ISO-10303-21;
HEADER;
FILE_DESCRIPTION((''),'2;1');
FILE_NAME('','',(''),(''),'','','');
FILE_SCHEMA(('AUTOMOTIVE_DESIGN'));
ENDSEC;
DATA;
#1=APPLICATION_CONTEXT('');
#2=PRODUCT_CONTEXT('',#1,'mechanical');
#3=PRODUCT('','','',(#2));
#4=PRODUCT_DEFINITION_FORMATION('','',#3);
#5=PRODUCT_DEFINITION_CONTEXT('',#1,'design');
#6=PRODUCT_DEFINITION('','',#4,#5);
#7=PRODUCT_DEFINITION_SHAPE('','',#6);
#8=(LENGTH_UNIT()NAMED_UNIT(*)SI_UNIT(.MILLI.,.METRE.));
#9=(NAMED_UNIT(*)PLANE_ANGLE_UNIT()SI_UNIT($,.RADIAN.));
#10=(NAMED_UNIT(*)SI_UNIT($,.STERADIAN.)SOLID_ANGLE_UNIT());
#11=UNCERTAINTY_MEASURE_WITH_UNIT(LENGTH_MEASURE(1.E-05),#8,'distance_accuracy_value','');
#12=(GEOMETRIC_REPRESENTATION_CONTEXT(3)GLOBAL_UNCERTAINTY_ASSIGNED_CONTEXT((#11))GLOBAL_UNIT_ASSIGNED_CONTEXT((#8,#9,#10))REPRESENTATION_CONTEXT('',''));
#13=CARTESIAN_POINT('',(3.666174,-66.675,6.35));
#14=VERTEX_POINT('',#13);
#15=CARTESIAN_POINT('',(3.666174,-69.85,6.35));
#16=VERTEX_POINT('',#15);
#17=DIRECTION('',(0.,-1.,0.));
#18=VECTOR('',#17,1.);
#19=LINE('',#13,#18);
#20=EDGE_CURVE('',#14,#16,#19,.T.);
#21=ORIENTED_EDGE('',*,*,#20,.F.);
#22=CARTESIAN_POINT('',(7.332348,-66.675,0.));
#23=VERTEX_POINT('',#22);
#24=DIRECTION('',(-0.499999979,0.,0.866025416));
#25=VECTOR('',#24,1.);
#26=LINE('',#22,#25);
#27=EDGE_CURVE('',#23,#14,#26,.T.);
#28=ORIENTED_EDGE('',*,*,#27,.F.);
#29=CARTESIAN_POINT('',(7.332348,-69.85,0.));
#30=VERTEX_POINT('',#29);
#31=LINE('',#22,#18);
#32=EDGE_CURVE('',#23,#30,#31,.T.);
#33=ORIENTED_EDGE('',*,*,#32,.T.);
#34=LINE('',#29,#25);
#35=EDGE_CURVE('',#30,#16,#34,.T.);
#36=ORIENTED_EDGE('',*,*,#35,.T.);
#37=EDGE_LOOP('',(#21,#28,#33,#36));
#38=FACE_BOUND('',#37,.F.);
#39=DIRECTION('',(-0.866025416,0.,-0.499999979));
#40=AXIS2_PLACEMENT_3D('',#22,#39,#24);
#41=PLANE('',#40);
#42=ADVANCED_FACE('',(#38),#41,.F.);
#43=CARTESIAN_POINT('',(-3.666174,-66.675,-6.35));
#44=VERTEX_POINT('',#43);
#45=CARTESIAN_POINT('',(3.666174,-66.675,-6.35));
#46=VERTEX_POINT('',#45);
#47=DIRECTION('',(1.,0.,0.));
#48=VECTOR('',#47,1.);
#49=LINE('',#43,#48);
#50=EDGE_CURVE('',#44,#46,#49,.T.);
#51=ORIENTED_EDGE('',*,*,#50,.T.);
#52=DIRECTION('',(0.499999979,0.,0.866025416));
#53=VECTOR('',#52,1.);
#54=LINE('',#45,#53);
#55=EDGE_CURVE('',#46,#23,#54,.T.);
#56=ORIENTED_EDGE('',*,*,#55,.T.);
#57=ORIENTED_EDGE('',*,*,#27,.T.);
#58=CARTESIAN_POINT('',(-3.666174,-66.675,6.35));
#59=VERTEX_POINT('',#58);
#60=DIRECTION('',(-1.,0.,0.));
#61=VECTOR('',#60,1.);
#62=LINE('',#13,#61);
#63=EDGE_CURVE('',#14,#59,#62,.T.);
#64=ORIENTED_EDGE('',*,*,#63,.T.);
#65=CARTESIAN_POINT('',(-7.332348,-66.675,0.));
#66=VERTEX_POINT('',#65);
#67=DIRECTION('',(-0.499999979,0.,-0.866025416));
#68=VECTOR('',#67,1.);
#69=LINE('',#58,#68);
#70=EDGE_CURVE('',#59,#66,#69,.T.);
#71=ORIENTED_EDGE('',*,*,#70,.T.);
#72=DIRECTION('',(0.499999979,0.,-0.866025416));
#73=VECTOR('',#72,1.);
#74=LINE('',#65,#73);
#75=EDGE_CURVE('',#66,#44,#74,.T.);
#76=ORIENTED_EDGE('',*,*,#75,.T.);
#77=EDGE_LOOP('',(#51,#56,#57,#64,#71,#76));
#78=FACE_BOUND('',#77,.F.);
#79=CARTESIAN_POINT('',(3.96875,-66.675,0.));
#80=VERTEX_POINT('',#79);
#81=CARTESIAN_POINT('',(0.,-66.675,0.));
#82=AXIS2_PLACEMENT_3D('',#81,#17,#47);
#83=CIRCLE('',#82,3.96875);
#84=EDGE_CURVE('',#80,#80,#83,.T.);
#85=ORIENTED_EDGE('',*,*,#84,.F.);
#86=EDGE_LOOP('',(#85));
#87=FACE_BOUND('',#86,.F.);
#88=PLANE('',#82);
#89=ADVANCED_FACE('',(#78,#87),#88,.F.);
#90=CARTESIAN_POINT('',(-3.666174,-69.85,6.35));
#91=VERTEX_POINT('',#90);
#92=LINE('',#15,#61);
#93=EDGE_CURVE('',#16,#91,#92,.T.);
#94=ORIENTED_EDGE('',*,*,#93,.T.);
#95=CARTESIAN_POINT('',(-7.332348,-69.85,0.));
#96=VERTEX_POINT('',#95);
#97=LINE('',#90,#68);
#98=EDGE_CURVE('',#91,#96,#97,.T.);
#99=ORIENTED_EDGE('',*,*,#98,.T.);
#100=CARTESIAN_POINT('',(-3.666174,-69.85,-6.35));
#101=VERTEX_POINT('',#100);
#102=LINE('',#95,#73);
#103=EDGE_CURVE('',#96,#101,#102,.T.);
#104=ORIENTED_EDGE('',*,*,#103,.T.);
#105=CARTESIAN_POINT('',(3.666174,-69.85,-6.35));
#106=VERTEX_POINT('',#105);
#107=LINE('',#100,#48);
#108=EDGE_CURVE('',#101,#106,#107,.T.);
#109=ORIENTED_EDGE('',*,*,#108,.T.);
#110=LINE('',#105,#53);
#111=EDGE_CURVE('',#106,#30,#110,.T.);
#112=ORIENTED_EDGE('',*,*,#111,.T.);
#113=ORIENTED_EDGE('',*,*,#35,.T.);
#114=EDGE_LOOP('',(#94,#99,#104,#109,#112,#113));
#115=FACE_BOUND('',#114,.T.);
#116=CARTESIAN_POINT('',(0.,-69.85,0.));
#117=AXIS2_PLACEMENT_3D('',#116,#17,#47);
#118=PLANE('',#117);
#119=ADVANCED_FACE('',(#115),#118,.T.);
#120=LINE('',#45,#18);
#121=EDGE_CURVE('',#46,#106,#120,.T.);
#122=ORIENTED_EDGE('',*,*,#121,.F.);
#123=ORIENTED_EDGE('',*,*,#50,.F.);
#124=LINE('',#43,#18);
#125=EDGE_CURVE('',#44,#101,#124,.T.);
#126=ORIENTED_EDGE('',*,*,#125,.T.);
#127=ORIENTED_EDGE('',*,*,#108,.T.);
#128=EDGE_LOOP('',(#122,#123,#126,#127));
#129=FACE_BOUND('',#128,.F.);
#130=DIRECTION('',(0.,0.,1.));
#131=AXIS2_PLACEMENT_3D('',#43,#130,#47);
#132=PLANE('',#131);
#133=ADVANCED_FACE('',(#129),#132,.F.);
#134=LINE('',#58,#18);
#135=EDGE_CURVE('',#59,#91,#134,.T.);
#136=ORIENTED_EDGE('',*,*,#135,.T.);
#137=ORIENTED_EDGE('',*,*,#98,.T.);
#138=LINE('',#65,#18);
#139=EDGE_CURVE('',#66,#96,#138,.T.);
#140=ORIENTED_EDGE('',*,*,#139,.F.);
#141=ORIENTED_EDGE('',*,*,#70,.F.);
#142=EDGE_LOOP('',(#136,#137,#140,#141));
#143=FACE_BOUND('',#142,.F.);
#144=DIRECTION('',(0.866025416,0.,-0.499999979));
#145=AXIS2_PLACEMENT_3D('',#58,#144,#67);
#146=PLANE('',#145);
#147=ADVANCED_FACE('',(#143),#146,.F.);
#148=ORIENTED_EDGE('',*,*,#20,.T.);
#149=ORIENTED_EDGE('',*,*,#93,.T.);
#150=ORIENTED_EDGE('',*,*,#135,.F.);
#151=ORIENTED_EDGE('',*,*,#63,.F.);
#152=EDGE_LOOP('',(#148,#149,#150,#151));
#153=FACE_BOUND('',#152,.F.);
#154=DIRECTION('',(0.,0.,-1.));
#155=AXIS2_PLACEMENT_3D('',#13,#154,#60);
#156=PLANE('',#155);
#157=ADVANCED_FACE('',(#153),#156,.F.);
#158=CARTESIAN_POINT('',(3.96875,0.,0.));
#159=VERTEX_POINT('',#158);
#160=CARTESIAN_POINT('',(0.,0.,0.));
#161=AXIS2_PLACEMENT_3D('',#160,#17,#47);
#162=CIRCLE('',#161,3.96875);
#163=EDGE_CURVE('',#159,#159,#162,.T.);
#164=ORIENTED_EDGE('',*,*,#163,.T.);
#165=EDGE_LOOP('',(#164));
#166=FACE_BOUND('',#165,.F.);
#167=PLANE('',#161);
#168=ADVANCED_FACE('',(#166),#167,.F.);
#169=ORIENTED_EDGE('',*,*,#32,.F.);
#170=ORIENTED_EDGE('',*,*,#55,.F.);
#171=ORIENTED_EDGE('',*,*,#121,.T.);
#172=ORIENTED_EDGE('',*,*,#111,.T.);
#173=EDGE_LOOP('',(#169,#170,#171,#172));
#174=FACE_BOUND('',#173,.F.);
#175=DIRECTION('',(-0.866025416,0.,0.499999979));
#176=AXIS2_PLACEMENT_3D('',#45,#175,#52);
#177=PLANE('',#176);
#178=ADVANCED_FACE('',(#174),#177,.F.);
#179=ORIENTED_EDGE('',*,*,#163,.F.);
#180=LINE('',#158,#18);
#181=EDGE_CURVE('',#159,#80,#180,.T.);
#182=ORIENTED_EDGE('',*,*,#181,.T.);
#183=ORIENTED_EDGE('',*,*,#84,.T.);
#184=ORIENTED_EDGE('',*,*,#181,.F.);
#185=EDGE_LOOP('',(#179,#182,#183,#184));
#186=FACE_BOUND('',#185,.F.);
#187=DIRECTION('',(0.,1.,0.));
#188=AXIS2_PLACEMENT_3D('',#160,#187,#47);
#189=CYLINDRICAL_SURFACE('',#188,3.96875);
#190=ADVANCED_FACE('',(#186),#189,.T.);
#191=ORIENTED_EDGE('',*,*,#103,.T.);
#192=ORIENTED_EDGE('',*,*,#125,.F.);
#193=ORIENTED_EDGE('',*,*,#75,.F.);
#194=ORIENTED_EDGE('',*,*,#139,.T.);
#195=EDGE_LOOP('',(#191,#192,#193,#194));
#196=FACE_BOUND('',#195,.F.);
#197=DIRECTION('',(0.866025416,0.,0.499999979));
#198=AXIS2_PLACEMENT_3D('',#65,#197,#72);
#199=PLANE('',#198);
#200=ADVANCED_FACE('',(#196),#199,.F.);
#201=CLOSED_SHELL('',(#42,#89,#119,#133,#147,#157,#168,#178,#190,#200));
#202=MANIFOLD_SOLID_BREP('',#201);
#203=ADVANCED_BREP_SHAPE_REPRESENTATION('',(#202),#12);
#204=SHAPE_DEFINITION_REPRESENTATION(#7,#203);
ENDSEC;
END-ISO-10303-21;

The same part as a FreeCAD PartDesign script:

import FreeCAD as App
import Part
import Sketcher
Q = App.Units.Quantity

doc = App.newDocument("Part")
body = doc.addObject("PartDesign::Body", "Body")

sketch1 = body.newObject("Sketcher::SketchObject", "Sketch")
sketch1.AttachmentSupport = (doc.getObject("XZ_Plane"), [""])
sketch1.MapMode = "FlatFace"
sketch1.addGeometry(Part.Circle(App.Vector(0, 0, 0), App.Vector(0, 0, 1), 3.96875), False)
sketch1.addConstraint([
    Sketcher.Constraint("Coincident", 0, 3, -1, 1),
    Sketcher.Constraint("Diameter", 0, Q("0.3125 in")),
])
pad1 = body.newObject("PartDesign::Pad", "Pad")
pad1.Profile = sketch1
pad1.Length = Q("2.625 in")

sketch2 = body.newObject("Sketcher::SketchObject", "Sketch001")
sketch2.AttachmentSupport = (doc.getObject("XZ_Plane"), [""])
sketch2.MapMode = "FlatFace"
sketch2.AttachmentOffset = App.Placement(App.Vector(0, 0, 2.625 * 25.4), App.Rotation())
sketch2.addGeometry([
    Part.LineSegment(App.Vector(3.666174, 6.35, 0), App.Vector(-3.666174, 6.35, 0)),
    Part.LineSegment(App.Vector(-3.666174, 6.35, 0), App.Vector(-7.332348, 0, 0)),
    Part.LineSegment(App.Vector(-7.332348, 0, 0), App.Vector(-3.666174, -6.35, 0)),
    Part.LineSegment(App.Vector(-3.666174, -6.35, 0), App.Vector(3.666174, -6.35, 0)),
    Part.LineSegment(App.Vector(3.666174, -6.35, 0), App.Vector(7.332348, 0, 0)),
    Part.LineSegment(App.Vector(7.332348, 0, 0), App.Vector(3.666174, 6.35, 0)),
], False)
sketch2.addConstraint([
    Sketcher.Constraint("Coincident", 0, 2, 1, 1),
    Sketcher.Constraint("Coincident", 1, 2, 2, 1),
    Sketcher.Constraint("Coincident", 2, 2, 3, 1),
    Sketcher.Constraint("Coincident", 3, 2, 4, 1),
    Sketcher.Constraint("Coincident", 4, 2, 5, 1),
    Sketcher.Constraint("Coincident", 5, 2, 0, 1),
    Sketcher.Constraint("Horizontal", 0),
    Sketcher.Constraint("Horizontal", 3),
    Sketcher.Constraint("Symmetric", 0, 2, 3, 2, -1, 1),
    Sketcher.Constraint("Symmetric", 1, 2, 4, 2, -1, 1),
    Sketcher.Constraint("PointOnObject", 1, 2, -1),
    Sketcher.Constraint("Parallel", 2, 5),
    Sketcher.Constraint("Vertical", 0, 2, 2, 2),
    Sketcher.Constraint("Angle", 1, Q("-119.999999 deg")),
    Sketcher.Constraint("DistanceY", 2, 2, 0, 2, Q("0.5 in")),
    Sketcher.Constraint("DistanceX", 0, 2, 0, 1, 7.332348),
])
pad2 = body.newObject("PartDesign::Pad", "Pad001")
pad2.Profile = sketch2
pad2.Length = Q("0.125 in")

doc.recompute()
